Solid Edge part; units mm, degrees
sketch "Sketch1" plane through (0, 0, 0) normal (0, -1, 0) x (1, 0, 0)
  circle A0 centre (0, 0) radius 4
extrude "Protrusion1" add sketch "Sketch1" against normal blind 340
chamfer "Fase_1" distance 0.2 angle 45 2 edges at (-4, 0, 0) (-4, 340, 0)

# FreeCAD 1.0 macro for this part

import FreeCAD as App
import Part
import Sketcher

V = App.Vector
Q = App.Units.Quantity


def edges_at(feature, points):
    """Names of the edges that pass closest to the given points."""
    edges = feature.Shape.Edges
    near = lambda p: min(range(len(edges)), key=lambda i: edges[i].distToShape(Part.Vertex(*p))[0])
    return sorted({f"Edge{near(p) + 1}" for p in points})

doc = App.newDocument("Part")
body = doc.addObject("PartDesign::Body", "Body")

sketch1 = doc.addObject("Sketcher::SketchObject", "Sketch")
body.addObject(sketch1)
sketch1.AttachmentSupport = (doc.XZ_Plane, [""])
sketch1.MapMode = "FlatFace"
sketch1.addGeometry(Part.Circle(V(0, 0, 0), V(0, 0, 1), 4), False)
sketch1.addConstraint(Sketcher.Constraint("Coincident", 0, 3, -1, 1))
sketch1.addConstraint(Sketcher.Constraint("Diameter", 0, Q("8 mm")))
pad1 = doc.addObject("PartDesign::Pad", "Pad")
body.addObject(pad1)
pad1.Profile = sketch1
pad1.Length = 340
pad1.Reversed = True
doc.recompute()

chamfer = doc.addObject("PartDesign::Chamfer", "Chamfer")
body.addObject(chamfer)
chamfer.Base = (pad1, edges_at(pad1, [(-4, 0, 0), (-4, 340, 0)]))
chamfer.Size = 0.2

doc.recompute()
